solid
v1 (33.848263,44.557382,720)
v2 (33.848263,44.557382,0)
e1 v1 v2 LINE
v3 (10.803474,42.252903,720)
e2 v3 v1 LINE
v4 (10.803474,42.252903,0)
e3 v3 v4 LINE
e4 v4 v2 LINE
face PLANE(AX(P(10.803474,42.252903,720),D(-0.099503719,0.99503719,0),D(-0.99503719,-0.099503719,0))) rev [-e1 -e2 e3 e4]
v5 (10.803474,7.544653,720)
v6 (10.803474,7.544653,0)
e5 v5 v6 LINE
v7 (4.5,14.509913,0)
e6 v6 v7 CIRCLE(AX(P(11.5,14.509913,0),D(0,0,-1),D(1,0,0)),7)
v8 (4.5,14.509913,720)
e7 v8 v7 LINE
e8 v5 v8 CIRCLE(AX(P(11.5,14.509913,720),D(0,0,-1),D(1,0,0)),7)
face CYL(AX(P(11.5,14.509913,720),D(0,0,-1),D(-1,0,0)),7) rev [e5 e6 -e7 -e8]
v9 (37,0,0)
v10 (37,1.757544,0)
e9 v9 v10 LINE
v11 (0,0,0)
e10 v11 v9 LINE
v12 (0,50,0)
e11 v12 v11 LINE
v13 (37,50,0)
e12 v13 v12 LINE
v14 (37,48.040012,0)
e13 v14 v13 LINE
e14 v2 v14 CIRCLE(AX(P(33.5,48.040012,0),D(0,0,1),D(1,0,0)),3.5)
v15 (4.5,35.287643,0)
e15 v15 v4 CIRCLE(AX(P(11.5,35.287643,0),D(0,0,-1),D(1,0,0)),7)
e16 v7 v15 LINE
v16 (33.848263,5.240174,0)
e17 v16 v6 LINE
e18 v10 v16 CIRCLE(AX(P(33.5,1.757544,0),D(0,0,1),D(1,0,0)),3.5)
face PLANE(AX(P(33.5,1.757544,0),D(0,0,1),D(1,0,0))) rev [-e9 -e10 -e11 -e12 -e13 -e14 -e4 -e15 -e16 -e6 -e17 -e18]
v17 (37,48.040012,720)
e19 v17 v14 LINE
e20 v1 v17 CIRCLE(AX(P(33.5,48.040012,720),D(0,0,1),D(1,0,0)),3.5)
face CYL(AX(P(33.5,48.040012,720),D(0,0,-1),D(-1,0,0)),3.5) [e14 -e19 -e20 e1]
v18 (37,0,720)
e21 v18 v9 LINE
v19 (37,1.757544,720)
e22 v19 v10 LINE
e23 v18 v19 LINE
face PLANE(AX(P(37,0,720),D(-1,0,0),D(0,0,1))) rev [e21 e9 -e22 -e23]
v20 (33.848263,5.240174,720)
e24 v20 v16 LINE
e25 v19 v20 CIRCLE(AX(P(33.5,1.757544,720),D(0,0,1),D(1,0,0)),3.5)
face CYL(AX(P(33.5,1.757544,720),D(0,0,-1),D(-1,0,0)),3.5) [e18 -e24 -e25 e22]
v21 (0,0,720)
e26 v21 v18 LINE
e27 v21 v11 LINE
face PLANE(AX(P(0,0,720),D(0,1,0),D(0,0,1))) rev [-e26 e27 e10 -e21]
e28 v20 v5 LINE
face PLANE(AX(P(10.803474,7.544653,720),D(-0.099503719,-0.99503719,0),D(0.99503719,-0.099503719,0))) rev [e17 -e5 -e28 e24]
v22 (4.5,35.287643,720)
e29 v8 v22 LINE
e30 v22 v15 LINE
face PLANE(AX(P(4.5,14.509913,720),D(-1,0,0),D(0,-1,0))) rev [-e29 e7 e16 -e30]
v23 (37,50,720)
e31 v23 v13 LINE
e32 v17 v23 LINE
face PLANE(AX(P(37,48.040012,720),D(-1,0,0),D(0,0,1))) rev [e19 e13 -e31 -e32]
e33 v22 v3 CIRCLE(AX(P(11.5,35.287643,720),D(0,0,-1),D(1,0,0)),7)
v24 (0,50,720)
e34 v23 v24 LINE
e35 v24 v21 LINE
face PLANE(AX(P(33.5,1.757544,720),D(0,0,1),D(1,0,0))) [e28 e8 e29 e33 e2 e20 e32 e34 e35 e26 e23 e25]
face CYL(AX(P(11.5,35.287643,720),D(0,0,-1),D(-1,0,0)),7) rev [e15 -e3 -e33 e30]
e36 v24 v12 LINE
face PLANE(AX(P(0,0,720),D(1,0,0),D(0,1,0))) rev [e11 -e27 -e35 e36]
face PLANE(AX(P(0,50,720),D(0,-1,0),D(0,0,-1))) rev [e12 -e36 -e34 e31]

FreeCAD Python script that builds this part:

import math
import FreeCAD as App
import Part
import Sketcher

doc = App.newDocument("Part")
body = doc.addObject("PartDesign::Body", "Body")

# Sketch on XY plane
sketch1 = body.newObject("Sketcher::SketchObject", "Sketch")
sketch1.AttachmentSupport = (doc.getObject("XY_Plane"), [""])
sketch1.MapMode = "FlatFace"
sketch1.addGeometry([
    Part.LineSegment(App.Vector(0, 50, 0), App.Vector(0, 0, 0)),  # 0
    Part.LineSegment(App.Vector(0, 0, 0), App.Vector(37, 0, 0)),  # 1
    Part.LineSegment(App.Vector(37, 0, 0), App.Vector(37, 1.8, 0)),  # 2
    Part.ArcOfCircle(Part.Circle(App.Vector(33.5, 1.8, 0), App.Vector(0, 0, 1), 3.5), math.radians(0), math.radians(84)),  # 3
    Part.LineSegment(App.Vector(33.8, 5.2, 0), App.Vector(10.8, 7.5, 0)),  # 4
    Part.ArcOfCircle(Part.Circle(App.Vector(11.5, 14.5, 0), App.Vector(0, 0, 1), 7), math.radians(180), math.radians(264)),  # 5
    Part.LineSegment(App.Vector(4.5, 14.5, 0), App.Vector(4.5, 35.3, 0)),  # 6
    Part.ArcOfCircle(Part.Circle(App.Vector(11.5, 35.3, 0), App.Vector(0, 0, 1), 7), math.radians(96), math.radians(180)),  # 7
    Part.LineSegment(App.Vector(10.8, 42.3, 0), App.Vector(33.8, 44.6, 0)),  # 8
    Part.ArcOfCircle(Part.Circle(App.Vector(33.5, 48, 0), App.Vector(0, 0, 1), 3.5), math.radians(-84), math.radians(0)),  # 9
    Part.LineSegment(App.Vector(37, 48, 0), App.Vector(37, 50, 0)),  # 10
    Part.LineSegment(App.Vector(37, 50, 0), App.Vector(0, 50, 0)),  # 11
], False)
sketch1.addConstraint([
    Sketcher.Constraint("Coincident", 0, 2, 1, 1),
    Sketcher.Constraint("Coincident", 1, 2, 2, 1),
    Sketcher.Constraint("Tangent", 2, 2, 3, 1),
    Sketcher.Constraint("Tangent", 3, 2, 4, 1),
    Sketcher.Constraint("Tangent", 4, 2, 5, 2),
    Sketcher.Constraint("Tangent", 5, 1, 6, 1),
    Sketcher.Constraint("Tangent", 6, 2, 7, 2),
    Sketcher.Constraint("Tangent", 7, 1, 8, 1),
    Sketcher.Constraint("Tangent", 8, 2, 9, 1),
    Sketcher.Constraint("Tangent", 9, 2, 10, 1),
    Sketcher.Constraint("Coincident", 10, 2, 11, 1),
    Sketcher.Constraint("Coincident", 11, 2, 0, 1),
    Sketcher.Constraint("Vertical", 0),
    Sketcher.Constraint("Horizontal", 1),
    Sketcher.Constraint("Vertical", 2),
    Sketcher.Constraint("Vertical", 6),
    Sketcher.Constraint("Vertical", 10),
    Sketcher.Constraint("Horizontal", 11),
    Sketcher.Constraint("Coincident", 0, 2, -1, 1),
    Sketcher.Constraint("Equal", 5, 7),
    Sketcher.Constraint("Equal", 3, 9),
    Sketcher.Constraint("Vertical", 3, 3, 9, 3),
    Sketcher.Constraint("Vertical", 4, 2, 7, 1),
    Sketcher.Constraint("Radius", 5, 7.0),
    Sketcher.Constraint("Radius", 3, 3.5),
    Sketcher.Constraint("DistanceX", 1, 1, 1, 2, 37.0),
    Sketcher.Constraint("DistanceY", 0, 2, 0, 1, 50.0),
    Sketcher.Constraint("DistanceX", 5, 3, 3, 3, 22.0),
    Sketcher.Constraint("DistanceY", 6, 1, 6, 2, 20.77773),
    Sketcher.Constraint("DistanceY", 3, 3, 7, 3, 33.530099),
    Sketcher.Constraint("DistanceY", 2, 1, 2, 2, 1.757544),
])
pad1 = body.newObject("PartDesign::Pad", "Pad")
pad1.Profile = sketch1
pad1.Length = 720

doc.recompute()
